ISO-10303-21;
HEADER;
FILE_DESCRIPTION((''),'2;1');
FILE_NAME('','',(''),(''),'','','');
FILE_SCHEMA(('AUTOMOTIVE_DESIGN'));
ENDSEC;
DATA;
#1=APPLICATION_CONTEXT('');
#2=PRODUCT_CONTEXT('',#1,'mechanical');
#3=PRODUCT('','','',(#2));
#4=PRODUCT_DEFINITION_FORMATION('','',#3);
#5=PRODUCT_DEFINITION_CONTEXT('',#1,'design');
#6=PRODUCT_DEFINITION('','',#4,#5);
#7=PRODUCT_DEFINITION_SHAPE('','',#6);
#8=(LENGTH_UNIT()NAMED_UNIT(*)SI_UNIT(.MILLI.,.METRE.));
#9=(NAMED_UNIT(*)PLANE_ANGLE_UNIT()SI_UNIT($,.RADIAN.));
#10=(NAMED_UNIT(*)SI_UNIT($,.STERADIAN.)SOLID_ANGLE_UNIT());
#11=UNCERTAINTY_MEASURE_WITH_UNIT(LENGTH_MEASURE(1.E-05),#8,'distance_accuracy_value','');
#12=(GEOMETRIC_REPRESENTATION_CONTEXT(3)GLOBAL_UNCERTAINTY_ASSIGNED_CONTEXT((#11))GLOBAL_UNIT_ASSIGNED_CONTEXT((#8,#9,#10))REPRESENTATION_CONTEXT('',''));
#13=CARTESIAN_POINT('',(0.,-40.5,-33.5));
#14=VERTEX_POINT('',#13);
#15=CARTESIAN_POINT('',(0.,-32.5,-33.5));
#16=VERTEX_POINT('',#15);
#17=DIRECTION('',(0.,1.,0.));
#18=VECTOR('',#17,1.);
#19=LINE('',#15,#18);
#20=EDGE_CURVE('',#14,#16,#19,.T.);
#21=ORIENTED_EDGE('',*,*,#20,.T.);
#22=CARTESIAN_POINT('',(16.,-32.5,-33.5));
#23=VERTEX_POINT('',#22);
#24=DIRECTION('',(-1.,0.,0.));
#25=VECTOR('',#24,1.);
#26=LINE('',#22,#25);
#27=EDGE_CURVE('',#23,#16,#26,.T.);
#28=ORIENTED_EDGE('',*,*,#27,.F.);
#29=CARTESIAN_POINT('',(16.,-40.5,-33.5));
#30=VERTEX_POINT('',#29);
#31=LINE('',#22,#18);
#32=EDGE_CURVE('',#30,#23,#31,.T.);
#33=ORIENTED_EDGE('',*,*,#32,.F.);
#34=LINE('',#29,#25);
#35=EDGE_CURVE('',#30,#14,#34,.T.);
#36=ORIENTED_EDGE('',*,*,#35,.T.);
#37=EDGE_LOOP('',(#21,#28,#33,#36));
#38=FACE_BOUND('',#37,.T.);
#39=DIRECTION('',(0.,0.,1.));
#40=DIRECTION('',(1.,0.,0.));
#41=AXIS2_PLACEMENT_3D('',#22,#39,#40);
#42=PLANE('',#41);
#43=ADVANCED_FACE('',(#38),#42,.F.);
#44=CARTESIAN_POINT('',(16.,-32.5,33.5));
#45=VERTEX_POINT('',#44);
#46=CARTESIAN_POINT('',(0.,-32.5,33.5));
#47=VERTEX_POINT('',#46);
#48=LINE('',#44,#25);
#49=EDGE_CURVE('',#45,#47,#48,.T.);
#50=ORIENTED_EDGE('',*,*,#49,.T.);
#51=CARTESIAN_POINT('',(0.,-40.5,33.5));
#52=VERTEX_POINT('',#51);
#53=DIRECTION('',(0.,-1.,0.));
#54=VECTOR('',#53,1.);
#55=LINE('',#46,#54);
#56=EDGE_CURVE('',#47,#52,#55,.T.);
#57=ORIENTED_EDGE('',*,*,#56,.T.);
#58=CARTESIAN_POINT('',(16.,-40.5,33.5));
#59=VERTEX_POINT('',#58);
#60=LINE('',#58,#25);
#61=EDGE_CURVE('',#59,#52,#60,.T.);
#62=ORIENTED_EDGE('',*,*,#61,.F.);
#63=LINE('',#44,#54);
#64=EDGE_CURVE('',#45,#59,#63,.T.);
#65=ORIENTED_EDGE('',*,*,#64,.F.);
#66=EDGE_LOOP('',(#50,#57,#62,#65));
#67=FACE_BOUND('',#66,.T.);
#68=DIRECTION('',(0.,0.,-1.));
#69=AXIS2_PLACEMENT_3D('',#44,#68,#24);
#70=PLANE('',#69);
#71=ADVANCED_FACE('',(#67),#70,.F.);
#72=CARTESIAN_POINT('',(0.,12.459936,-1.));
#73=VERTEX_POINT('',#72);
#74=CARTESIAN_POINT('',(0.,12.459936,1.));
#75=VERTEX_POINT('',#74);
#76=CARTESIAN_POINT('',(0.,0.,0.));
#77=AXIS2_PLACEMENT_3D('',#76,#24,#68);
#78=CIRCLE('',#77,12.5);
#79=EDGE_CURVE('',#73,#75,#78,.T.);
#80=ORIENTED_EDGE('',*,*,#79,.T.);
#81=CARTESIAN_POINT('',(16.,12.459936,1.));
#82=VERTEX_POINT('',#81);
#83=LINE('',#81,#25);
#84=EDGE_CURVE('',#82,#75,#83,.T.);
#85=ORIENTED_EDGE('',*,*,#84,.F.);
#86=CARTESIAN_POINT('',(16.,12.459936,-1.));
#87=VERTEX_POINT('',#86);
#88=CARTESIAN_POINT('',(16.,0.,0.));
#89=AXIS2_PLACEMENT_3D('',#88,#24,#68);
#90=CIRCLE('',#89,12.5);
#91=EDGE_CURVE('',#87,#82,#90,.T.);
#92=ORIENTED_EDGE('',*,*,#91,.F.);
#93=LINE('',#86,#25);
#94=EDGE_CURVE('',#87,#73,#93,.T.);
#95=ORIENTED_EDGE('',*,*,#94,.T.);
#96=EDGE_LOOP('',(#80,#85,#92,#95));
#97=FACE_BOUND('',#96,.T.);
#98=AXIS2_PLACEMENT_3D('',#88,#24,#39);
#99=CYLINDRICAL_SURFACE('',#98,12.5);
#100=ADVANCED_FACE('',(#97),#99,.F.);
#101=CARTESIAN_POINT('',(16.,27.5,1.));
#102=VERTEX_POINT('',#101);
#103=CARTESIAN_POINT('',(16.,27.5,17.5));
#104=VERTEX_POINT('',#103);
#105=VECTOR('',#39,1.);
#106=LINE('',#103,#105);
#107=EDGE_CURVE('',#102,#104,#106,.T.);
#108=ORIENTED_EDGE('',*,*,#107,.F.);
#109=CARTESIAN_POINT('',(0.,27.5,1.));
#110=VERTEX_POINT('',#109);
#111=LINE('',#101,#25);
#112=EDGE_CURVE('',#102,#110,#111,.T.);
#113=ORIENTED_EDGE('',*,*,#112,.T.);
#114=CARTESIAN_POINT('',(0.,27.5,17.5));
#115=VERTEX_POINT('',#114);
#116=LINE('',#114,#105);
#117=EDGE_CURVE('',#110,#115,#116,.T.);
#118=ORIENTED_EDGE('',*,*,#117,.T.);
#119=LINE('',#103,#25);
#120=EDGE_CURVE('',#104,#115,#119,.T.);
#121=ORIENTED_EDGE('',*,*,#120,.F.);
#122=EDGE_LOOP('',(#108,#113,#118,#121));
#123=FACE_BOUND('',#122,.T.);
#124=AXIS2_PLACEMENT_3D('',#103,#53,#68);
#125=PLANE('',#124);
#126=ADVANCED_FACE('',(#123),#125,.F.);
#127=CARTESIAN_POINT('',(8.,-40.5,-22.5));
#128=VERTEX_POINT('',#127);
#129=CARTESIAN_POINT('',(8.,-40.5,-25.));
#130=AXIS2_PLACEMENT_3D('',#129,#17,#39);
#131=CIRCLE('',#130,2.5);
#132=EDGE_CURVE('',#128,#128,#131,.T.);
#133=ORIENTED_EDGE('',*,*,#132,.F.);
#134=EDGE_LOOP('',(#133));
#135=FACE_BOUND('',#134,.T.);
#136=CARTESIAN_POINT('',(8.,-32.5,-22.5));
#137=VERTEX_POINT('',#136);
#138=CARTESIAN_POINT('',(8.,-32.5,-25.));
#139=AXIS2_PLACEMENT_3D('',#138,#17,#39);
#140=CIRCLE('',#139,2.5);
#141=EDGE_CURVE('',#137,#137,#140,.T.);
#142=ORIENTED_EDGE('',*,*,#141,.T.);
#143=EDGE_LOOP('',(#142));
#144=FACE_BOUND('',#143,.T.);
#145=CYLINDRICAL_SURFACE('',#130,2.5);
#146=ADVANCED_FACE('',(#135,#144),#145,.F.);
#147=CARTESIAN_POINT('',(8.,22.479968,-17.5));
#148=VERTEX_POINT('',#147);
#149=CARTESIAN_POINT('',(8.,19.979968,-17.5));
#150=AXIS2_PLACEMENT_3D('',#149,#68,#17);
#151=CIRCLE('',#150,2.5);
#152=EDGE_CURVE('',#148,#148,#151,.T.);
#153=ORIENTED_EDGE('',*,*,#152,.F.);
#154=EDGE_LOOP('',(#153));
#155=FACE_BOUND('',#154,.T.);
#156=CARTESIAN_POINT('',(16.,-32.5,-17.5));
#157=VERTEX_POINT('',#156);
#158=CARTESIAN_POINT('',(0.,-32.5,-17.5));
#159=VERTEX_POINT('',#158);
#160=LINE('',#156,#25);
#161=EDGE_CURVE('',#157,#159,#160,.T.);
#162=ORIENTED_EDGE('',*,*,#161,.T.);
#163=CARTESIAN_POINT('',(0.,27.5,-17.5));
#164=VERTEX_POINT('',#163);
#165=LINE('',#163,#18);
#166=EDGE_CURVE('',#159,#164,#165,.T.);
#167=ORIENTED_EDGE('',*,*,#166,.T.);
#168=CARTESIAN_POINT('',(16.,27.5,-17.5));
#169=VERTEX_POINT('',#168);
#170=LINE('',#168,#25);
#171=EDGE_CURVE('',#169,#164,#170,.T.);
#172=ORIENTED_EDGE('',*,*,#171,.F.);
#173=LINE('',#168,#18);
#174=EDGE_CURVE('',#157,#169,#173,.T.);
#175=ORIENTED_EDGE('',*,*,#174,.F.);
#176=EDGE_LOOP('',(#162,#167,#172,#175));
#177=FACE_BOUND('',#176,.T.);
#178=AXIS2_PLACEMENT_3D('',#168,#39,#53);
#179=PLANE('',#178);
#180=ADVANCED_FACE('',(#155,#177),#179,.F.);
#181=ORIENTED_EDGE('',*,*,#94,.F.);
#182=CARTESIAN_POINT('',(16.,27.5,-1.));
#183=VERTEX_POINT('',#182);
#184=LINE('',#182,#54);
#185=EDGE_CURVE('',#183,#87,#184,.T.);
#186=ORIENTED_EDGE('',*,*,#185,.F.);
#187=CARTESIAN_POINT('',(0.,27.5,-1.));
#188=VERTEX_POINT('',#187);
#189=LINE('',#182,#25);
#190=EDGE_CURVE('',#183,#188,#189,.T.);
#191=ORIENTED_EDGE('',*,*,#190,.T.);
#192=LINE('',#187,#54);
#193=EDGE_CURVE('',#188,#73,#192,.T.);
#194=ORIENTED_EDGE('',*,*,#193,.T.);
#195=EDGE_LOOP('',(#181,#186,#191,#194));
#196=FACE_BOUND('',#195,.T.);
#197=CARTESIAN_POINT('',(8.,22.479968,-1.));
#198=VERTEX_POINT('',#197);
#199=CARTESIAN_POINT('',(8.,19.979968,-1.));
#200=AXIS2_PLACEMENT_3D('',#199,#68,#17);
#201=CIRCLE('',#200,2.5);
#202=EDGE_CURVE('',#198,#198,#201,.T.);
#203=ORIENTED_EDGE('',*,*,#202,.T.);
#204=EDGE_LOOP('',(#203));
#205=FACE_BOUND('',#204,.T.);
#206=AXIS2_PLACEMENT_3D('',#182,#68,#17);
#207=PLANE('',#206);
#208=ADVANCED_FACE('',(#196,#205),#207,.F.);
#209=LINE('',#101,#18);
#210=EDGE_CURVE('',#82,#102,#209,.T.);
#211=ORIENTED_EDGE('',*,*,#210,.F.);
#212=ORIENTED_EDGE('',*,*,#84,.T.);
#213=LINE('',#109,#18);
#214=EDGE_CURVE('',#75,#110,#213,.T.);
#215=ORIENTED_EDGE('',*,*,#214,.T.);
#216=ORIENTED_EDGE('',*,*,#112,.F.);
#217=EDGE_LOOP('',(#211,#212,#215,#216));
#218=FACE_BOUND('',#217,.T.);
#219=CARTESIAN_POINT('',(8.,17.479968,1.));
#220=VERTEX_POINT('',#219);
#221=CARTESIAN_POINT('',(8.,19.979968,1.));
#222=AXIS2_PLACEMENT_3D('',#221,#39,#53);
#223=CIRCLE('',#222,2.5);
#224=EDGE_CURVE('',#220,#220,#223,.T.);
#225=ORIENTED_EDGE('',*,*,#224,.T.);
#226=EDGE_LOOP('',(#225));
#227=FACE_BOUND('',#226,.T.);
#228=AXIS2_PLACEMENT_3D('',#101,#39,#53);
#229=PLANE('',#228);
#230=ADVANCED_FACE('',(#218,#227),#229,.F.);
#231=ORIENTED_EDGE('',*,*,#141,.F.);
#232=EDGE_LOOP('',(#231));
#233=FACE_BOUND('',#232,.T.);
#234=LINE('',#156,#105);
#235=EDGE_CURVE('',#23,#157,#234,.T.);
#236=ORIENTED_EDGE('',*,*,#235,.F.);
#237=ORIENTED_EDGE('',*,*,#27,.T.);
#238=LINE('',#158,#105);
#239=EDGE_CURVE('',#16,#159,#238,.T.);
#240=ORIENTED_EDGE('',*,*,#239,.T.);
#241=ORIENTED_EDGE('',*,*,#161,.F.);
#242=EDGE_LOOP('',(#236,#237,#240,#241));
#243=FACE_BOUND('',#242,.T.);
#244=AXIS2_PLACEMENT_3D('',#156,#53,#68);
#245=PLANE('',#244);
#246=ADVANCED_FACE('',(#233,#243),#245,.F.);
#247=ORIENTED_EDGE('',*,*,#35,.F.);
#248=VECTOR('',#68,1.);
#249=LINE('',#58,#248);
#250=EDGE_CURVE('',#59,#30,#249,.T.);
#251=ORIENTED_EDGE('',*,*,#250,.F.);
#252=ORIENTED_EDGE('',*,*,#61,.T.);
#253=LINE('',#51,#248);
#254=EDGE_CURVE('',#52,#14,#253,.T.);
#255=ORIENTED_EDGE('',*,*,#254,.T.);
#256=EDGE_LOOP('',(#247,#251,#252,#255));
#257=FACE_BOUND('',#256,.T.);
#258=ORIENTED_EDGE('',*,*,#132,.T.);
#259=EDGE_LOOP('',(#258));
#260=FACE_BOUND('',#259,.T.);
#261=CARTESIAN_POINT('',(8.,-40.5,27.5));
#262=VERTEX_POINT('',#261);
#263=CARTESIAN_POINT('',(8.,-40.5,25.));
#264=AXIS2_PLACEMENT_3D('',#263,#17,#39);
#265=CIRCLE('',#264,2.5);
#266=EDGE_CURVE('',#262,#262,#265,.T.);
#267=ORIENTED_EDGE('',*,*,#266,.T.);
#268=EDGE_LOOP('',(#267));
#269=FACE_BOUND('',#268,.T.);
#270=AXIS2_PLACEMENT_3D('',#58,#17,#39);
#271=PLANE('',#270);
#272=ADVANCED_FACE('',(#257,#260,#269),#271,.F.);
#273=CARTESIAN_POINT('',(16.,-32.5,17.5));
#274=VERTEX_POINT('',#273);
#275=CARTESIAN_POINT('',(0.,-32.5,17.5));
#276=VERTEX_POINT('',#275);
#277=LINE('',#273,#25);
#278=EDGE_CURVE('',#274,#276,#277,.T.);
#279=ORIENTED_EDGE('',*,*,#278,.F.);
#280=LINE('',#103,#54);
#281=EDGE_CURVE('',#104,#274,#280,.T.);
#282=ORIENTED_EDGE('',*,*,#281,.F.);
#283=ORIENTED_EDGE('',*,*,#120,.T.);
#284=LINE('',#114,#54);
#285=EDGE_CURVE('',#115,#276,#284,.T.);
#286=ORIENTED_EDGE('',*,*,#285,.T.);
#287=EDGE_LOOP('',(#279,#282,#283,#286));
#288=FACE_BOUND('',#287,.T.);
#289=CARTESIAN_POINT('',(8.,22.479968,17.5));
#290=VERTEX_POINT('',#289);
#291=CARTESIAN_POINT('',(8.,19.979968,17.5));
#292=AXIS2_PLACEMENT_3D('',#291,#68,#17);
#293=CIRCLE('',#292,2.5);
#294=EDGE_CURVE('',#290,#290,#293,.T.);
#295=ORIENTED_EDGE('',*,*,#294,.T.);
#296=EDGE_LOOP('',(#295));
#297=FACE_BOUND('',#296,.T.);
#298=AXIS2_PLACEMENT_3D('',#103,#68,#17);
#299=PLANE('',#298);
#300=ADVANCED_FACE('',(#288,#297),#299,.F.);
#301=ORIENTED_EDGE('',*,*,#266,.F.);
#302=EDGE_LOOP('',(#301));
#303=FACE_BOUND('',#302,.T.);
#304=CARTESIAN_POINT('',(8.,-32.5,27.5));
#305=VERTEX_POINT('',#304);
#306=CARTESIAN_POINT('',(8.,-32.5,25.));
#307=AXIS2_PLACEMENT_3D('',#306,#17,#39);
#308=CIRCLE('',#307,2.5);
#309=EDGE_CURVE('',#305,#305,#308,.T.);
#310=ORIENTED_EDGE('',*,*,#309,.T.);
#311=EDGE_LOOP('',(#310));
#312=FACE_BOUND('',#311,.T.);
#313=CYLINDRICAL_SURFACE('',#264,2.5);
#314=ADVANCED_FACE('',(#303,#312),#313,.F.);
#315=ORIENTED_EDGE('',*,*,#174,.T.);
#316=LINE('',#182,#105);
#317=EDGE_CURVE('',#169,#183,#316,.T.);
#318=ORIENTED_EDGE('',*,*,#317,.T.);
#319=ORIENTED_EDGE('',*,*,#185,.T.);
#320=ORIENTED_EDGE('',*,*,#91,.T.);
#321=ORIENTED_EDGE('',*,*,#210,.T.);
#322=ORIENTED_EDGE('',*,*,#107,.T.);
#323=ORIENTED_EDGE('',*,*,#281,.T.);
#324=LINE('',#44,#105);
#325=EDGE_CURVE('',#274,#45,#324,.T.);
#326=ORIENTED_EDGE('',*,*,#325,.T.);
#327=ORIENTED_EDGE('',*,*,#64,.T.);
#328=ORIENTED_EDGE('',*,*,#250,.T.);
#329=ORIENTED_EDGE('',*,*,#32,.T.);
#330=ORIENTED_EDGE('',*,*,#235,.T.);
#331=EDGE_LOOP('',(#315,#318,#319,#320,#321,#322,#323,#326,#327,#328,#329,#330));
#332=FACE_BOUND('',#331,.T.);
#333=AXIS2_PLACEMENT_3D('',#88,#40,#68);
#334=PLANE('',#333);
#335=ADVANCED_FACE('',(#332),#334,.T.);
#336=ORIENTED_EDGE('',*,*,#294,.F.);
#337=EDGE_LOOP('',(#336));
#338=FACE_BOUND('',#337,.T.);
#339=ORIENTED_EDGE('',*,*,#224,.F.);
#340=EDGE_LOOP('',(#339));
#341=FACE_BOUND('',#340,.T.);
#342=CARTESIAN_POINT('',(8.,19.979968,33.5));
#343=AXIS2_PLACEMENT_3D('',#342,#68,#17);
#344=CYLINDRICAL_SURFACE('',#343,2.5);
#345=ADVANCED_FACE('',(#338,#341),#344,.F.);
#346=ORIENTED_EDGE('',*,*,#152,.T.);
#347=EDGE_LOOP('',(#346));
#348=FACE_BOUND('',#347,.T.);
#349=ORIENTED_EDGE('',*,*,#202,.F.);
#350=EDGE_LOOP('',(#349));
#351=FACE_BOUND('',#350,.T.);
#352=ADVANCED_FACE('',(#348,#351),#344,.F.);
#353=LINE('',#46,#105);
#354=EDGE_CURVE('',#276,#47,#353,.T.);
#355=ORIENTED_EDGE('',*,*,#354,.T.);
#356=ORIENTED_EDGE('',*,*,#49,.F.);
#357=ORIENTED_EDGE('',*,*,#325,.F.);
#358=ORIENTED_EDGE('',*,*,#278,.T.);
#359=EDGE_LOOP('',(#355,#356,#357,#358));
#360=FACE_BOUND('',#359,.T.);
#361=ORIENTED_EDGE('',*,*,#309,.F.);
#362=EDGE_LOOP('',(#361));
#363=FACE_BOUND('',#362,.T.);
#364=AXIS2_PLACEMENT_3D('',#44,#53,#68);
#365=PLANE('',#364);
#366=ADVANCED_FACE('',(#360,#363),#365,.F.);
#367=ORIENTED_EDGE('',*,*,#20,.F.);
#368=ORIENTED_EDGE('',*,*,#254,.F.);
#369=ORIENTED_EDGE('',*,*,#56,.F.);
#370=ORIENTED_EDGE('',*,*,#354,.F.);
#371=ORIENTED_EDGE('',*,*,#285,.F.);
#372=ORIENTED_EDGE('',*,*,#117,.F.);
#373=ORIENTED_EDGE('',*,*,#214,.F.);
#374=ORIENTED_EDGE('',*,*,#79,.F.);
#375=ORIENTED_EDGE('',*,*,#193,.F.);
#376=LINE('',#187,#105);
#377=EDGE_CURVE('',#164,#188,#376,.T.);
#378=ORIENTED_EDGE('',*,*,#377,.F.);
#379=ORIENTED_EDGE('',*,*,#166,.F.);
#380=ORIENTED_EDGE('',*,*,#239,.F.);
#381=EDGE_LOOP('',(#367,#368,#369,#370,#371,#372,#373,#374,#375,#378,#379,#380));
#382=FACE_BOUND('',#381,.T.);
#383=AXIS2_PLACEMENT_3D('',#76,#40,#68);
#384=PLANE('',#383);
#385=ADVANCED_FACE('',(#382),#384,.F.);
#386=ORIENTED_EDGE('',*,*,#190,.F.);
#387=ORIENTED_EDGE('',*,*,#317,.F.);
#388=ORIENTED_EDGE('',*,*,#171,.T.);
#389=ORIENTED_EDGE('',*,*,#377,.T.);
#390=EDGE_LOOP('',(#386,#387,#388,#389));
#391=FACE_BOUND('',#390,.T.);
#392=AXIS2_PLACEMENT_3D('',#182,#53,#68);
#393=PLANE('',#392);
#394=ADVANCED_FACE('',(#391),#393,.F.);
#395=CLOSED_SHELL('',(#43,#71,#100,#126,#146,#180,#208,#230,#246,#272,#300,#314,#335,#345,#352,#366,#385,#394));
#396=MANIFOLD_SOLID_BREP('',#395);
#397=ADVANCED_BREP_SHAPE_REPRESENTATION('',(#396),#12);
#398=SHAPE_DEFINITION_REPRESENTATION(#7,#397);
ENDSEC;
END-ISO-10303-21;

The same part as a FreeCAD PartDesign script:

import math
import FreeCAD as App
import Part
import Sketcher
from FreeCAD import Vector

doc = App.newDocument("Part")
body = doc.addObject("PartDesign::Body", "Body")

sketch1 = doc.addObject("Sketcher::SketchObject", "Sketch")
body.addObject(sketch1)
sketch1.AttachmentSupport = (doc.YZ_Plane, [""])
sketch1.MapMode = "FlatFace"
sketch1.addGeometry([
    Part.LineSegment(Vector(-32.5, -33.5, 0), Vector(-32.5, -17.5, 0)),
    Part.LineSegment(Vector(-32.5, -17.5, 0), Vector(27.5, -17.5, 0)),
    Part.LineSegment(Vector(27.5, -17.5, 0), Vector(27.5, -1, 0)),
    Part.LineSegment(Vector(27.5, -1, 0), Vector(12.459936, -1, 0)),
    Part.ArcOfCircle(Part.Circle(Vector(0, 0, 0), Vector(0, 0, 1), 12.5), math.radians(4.588566), math.radians(355.411434)),
    Part.LineSegment(Vector(12.459936, 1, 0), Vector(27.5, 1, 0)),
    Part.LineSegment(Vector(27.5, 1, 0), Vector(27.5, 17.5, 0)),
    Part.LineSegment(Vector(27.5, 17.5, 0), Vector(-32.5, 17.5, 0)),
    Part.LineSegment(Vector(-32.5, 17.5, 0), Vector(-32.5, 33.5, 0)),
    Part.LineSegment(Vector(-32.5, 33.5, 0), Vector(-40.5, 33.5, 0)),
    Part.LineSegment(Vector(-40.5, 33.5, 0), Vector(-40.5, -33.5, 0)),
    Part.LineSegment(Vector(-40.5, -33.5, 0), Vector(-32.5, -33.5, 0)),
], False)
sketch1.addConstraint([
    Sketcher.Constraint("Coincident", 0, 2, 1, 1),
    Sketcher.Constraint("Coincident", 1, 2, 2, 1),
    Sketcher.Constraint("Coincident", 2, 2, 3, 1),
    Sketcher.Constraint("Coincident", 3, 2, 4, 2),
    Sketcher.Constraint("Coincident", 4, 1, 5, 1),
    Sketcher.Constraint("Coincident", 5, 2, 6, 1),
    Sketcher.Constraint("Coincident", 6, 2, 7, 1),
    Sketcher.Constraint("Coincident", 7, 2, 8, 1),
    Sketcher.Constraint("Coincident", 8, 2, 9, 1),
    Sketcher.Constraint("Coincident", 9, 2, 10, 1),
    Sketcher.Constraint("Coincident", 10, 2, 11, 1),
    Sketcher.Constraint("Coincident", 11, 2, 0, 1),
    Sketcher.Constraint("Vertical", 0),
    Sketcher.Constraint("Horizontal", 1),
    Sketcher.Constraint("Vertical", 2),
    Sketcher.Constraint("Horizontal", 3),
    Sketcher.Constraint("Horizontal", 5),
    Sketcher.Constraint("Vertical", 6),
    Sketcher.Constraint("Horizontal", 7),
    Sketcher.Constraint("Vertical", 8),
    Sketcher.Constraint("Horizontal", 9),
    Sketcher.Constraint("Vertical", 10),
    Sketcher.Constraint("Horizontal", 11),
    Sketcher.Constraint("Coincident", 4, 3, -1, 1),
    Sketcher.Constraint("Symmetric", 2, 2, 5, 2, -1),
    Sketcher.Constraint("Symmetric", 0, 2, 7, 2, -1),
    Sketcher.Constraint("Equal", 0, 8),
    Sketcher.Constraint("Radius", 4, 12.5),
    Sketcher.Constraint("DistanceX", 1, 1, 1, 2, 60.0),
    Sketcher.Constraint("DistanceX", 9, 2, 9, 1, 8.0),
    Sketcher.Constraint("DistanceY", 0, 1, 0, 2, 16.0),
    Sketcher.Constraint("DistanceY", 10, 2, 10, 1, 67.0),
    Sketcher.Constraint("DistanceY", 2, 1, 2, 2, 16.5),
    Sketcher.Constraint("DistanceX", 0, 2, -1, 1, 32.5),
])
pad1 = doc.addObject("PartDesign::Pad", "Pad")
body.addObject(pad1)
pad1.Profile = sketch1
pad1.Length = 16

sketch2 = doc.addObject("Sketcher::SketchObject", "Sketch001")
body.addObject(sketch2)
sketch2.AttachmentSupport = (doc.XZ_Plane, [""])
sketch2.MapMode = "FlatFace"
sketch2.AttachmentOffset = App.Placement(Vector(0, 0, 32.5), App.Rotation())
sketch2.addGeometry([
    Part.Circle(Vector(8, 25, 0), Vector(0, 0, 1), 2.5),
    Part.Circle(Vector(8, -25, 0), Vector(0, 0, 1), 2.5),
], False)
sketch2.addConstraint([
    Sketcher.Constraint("Equal", 0, 1),
    Sketcher.Constraint("Symmetric", 0, 3, 1, 3, -1),
    Sketcher.Constraint("Diameter", 0, 5.0),
    Sketcher.Constraint("DistanceX", -1, 1, 0, 3, 8.0),
    Sketcher.Constraint("DistanceY", -1, 1, 0, 3, 25.0),
])
pocket1 = doc.addObject("PartDesign::Pocket", "Pocket")
body.addObject(pocket1)
pocket1.Profile = sketch2
pocket1.Type = "ThroughAll"
pocket1.Reversed = True

sketch3 = doc.addObject("Sketcher::SketchObject", "Sketch002")
body.addObject(sketch3)
sketch3.AttachmentSupport = (doc.XY_Plane, [""])
sketch3.MapMode = "FlatFace"
sketch3.AttachmentOffset = App.Placement(Vector(0, 0, -17.5), App.Rotation())
sketch3.addGeometry(Part.Circle(Vector(8, 19.979968, 0), Vector(0, 0, 1), 2.5), False)
sketch3.addConstraint([
    Sketcher.Constraint("Diameter", 0, 5.0),
    Sketcher.Constraint("DistanceX", -1, 1, 0, 3, 8.0),
    Sketcher.Constraint("DistanceY", -1, 1, 0, 3, 19.979968),
])
pocket2 = doc.addObject("PartDesign::Pocket", "Pocket001")
body.addObject(pocket2)
pocket2.Profile = sketch3
pocket2.Type = "ThroughAll"
pocket2.Reversed = True

doc.recompute()
